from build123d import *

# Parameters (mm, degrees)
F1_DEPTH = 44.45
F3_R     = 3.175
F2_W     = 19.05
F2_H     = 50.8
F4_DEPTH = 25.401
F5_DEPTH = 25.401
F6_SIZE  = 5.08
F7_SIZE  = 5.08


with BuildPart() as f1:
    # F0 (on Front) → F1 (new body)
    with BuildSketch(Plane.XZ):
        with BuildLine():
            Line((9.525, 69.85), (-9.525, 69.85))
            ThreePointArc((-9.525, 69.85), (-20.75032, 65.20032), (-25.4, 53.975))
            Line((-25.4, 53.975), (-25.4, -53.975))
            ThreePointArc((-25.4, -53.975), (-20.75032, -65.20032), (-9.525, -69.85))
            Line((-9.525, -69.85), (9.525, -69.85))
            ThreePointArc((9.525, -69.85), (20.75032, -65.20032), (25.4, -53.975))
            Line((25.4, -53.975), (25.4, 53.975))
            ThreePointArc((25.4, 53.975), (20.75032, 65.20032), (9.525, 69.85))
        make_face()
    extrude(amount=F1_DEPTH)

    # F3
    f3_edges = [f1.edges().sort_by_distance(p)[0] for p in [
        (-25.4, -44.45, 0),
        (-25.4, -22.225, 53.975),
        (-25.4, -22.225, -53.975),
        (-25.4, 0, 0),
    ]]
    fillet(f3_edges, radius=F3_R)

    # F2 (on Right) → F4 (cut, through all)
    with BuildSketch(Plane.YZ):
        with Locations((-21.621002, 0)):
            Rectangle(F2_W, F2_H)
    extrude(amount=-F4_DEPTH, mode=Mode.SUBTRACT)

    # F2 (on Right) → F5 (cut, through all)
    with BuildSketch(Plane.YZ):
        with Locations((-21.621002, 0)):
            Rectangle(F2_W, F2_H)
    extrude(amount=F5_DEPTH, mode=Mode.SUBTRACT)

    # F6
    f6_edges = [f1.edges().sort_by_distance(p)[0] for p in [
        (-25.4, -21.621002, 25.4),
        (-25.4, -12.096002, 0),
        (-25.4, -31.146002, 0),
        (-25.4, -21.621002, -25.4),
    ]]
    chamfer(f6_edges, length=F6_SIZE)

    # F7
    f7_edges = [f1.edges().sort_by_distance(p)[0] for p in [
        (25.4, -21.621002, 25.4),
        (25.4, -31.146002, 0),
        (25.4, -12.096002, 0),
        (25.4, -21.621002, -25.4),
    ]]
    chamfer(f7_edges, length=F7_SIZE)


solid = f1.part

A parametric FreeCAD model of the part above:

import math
import FreeCAD as App
import Part
import Sketcher

V = App.Vector
Q = App.Units.Quantity


def edges_at(feature, points):
    """Names of the edges that pass closest to the given points."""
    edges = feature.Shape.Edges
    near = lambda p: min(range(len(edges)), key=lambda i: edges[i].distToShape(Part.Vertex(*p))[0])
    return sorted({f"Edge{near(p) + 1}" for p in points})


def add_polygon(sketch, points):
    """Adds a closed chain of lines whose ends are joined by coincident constraints."""
    first, n = sketch.GeometryCount, len(points)
    for a, b in zip(points, points[1:] + points[:1]):
        sketch.addGeometry(Part.LineSegment(App.Vector(*a, 0), App.Vector(*b, 0)), False)
    for i in range(n):
        sketch.addConstraint(Sketcher.Constraint("Coincident", first + i, 2, first + (i + 1) % n, 1))

doc = App.newDocument("Part")
body = doc.addObject("PartDesign::Body", "Body")

# Sketch on XZ plane
sketch1 = body.newObject("Sketcher::SketchObject", "Sketch")
sketch1.AttachmentSupport = (doc.getObject("XZ_Plane"), [""])
sketch1.MapMode = "FlatFace"
sketch1.addGeometry([
    Part.LineSegment(V(10, 70, 0), V(-10, 70, 0)),  # 0
    Part.ArcOfCircle(Part.Circle(V(-10, 54, 0), V(0, 0, 1), 16), math.radians(90), math.radians(180)),  # 1
    Part.LineSegment(V(-25, 54, 0), V(-25, -54, 0)),  # 2
    Part.ArcOfCircle(Part.Circle(V(-10, -54, 0), V(0, 0, 1), 16), math.radians(-180), math.radians(-90)),  # 3
    Part.LineSegment(V(-10, -70, 0), V(10, -70, 0)),  # 4
    Part.ArcOfCircle(Part.Circle(V(10, -54, 0), V(0, 0, 1), 16), math.radians(-90), math.radians(0)),  # 5
    Part.LineSegment(V(25, -54, 0), V(25, 54, 0)),  # 6
    Part.ArcOfCircle(Part.Circle(V(10, 54, 0), V(0, 0, 1), 16), math.radians(0), math.radians(90)),  # 7
], False)
sketch1.addConstraint([
    Sketcher.Constraint("Tangent", 0, 2, 1, 1),
    Sketcher.Constraint("Tangent", 1, 2, 2, 1),
    Sketcher.Constraint("Tangent", 2, 2, 3, 1),
    Sketcher.Constraint("Tangent", 3, 2, 4, 1),
    Sketcher.Constraint("Tangent", 4, 2, 5, 1),
    Sketcher.Constraint("Tangent", 5, 2, 6, 1),
    Sketcher.Constraint("Tangent", 6, 2, 7, 1),
    Sketcher.Constraint("Tangent", 7, 2, 0, 1),
    Sketcher.Constraint("Horizontal", 0),
    Sketcher.Constraint("Vertical", 2),
    Sketcher.Constraint("Horizontal", 4),
    Sketcher.Constraint("Vertical", 6),
    Sketcher.Constraint("Equal", 1, 3),
    Sketcher.Constraint("Equal", 3, 5),
    Sketcher.Constraint("Equal", 5, 7),
    Sketcher.Constraint("Symmetric", 1, 3, 5, 3, -1, 1),
    Sketcher.Constraint("DistanceX", 1, 2, -1, 1, Q("1 in")),
    Sketcher.Constraint("Radius", 1, Q("0.625 in")),
    Sketcher.Constraint("DistanceY", 2, 2, 2, 1, Q("4.25 in")),
])
pad1 = body.newObject("PartDesign::Pad", "Pad")
pad1.Profile = sketch1
pad1.Length = Q("1.75 in")
doc.recompute()

fillet = body.newObject("PartDesign::Fillet", "Fillet")
fillet.Base = (pad1, edges_at(pad1, [
    (-25.4, -44.45, 0),
    (-25.4, -22.225, 53.975),
    (-25.4, -22.225, -53.975),
    (-25.4, 0, 0),
]))
fillet.Radius = Q("0.125 in")

# Sketch on YZ plane
sketch2 = body.newObject("Sketcher::SketchObject", "Sketch001")
sketch2.AttachmentSupport = (doc.getObject("YZ_Plane"), [""])
sketch2.MapMode = "FlatFace"
add_polygon(sketch2, [(-31, 25), (-31, -25), (-12, -25), (-12, 25)])  # lines 0-3
sketch2.addConstraint([
    Sketcher.Constraint("Vertical", 0),
    Sketcher.Constraint("Horizontal", 1),
    Sketcher.Constraint("Vertical", 2),
    Sketcher.Constraint("Horizontal", 3),
    Sketcher.Constraint("DistanceY", 0, 2, 0, 1, Q("2 in")),
    Sketcher.Constraint("DistanceY", 0, 2, -1, 1, Q("1 in")),
    Sketcher.Constraint("DistanceX", 1, 1, 1, 2, Q("0.75 in")),
    Sketcher.Constraint("DistanceX", 0, 2, -1, 1, 31.146002),
])
pocket1 = body.newObject("PartDesign::Pocket", "Pocket")
pocket1.Profile = sketch2
pocket1.Type = "ThroughAll"

# Sketch on YZ plane
sketch3 = body.newObject("Sketcher::SketchObject", "Sketch002")
sketch3.AttachmentSupport = (doc.getObject("YZ_Plane"), [""])
sketch3.MapMode = "FlatFace"
add_polygon(sketch3, [(-31, 25), (-31, -25), (-12, -25), (-12, 25)])  # lines 0-3
sketch3.addConstraint([
    Sketcher.Constraint("Vertical", 0),
    Sketcher.Constraint("Horizontal", 1),
    Sketcher.Constraint("Vertical", 2),
    Sketcher.Constraint("Horizontal", 3),
    Sketcher.Constraint("DistanceY", 0, 2, 0, 1, Q("2 in")),
    Sketcher.Constraint("DistanceY", 0, 2, -1, 1, Q("1 in")),
    Sketcher.Constraint("DistanceX", 1, 1, 1, 2, Q("0.75 in")),
    Sketcher.Constraint("DistanceX", 0, 2, -1, 1, 31.146002),
])
pocket2 = body.newObject("PartDesign::Pocket", "Pocket001")
pocket2.Profile = sketch3
pocket2.Type = "ThroughAll"
pocket2.Reversed = True
doc.recompute()

chamfer = body.newObject("PartDesign::Chamfer", "Chamfer")
chamfer.Base = (pocket2, edges_at(pocket2, [
    (-25.4, -21.621, 25.4),
    (-25.4, -12.096, 0),
    (-25.4, -31.146, 0),
    (-25.4, -21.621, -25.4),
]))
chamfer.Size = Q("0.2 in")
doc.recompute()

chamfer2 = body.newObject("PartDesign::Chamfer", "Chamfer001")
chamfer2.Base = (chamfer, edges_at(chamfer, [
    (25.4, -21.621, 25.4),
    (25.4, -31.146, 0),
    (25.4, -12.096, 0),
    (25.4, -21.621, -25.4),
]))
chamfer2.Size = Q("0.2 in")

doc.recompute()
